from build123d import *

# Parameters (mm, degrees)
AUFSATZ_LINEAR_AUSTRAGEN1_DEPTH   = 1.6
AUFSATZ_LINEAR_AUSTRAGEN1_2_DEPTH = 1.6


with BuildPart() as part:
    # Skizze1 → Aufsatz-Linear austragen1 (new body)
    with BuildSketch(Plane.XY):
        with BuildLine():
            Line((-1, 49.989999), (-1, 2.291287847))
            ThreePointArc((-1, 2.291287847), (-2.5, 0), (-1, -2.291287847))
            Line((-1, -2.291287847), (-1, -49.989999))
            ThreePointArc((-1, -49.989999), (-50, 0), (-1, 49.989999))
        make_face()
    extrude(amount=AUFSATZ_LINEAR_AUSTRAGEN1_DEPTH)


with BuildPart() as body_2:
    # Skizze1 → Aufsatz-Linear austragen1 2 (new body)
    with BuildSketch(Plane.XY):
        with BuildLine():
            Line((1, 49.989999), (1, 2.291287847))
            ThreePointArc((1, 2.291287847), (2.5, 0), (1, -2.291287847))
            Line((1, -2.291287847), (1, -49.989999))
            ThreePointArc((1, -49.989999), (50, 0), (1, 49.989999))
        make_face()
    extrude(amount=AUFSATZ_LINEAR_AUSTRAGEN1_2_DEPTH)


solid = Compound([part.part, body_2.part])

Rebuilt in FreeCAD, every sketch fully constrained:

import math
import FreeCAD as App
import Part
import Sketcher

V = App.Vector
Q = App.Units.Quantity

doc = App.newDocument("Part")
body = doc.addObject("PartDesign::Body", "Body")

# Sketch on XY plane
sketch1 = body.newObject("Sketcher::SketchObject", "Sketch")
sketch1.AttachmentSupport = (doc.getObject("XY_Plane"), [""])
sketch1.MapMode = "FlatFace"
sketch1.addGeometry([
    Part.LineSegment(V(-1, 2.3, 0), V(-1, 50, 0)),
    Part.ArcOfCircle(Part.Circle(V(0, 0, 0), V(0, 0, 1), 50), math.radians(91), math.radians(269)),
    Part.LineSegment(V(-1, -50, 0), V(-1, -2.3, 0)),
    Part.ArcOfCircle(Part.Circle(V(0, 0, 0), V(0, 0, 1), 2.5), math.radians(114), math.radians(246)),
], False)
sketch1.addConstraint([
    Sketcher.Constraint("Coincident", 0, 2, 1, 1),
    Sketcher.Constraint("Coincident", 1, 2, 2, 1),
    Sketcher.Constraint("Coincident", 2, 2, 3, 2),
    Sketcher.Constraint("Coincident", 3, 1, 0, 1),
    Sketcher.Constraint("Vertical", 0),
    Sketcher.Constraint("Vertical", 2),
    Sketcher.Constraint("Coincident", 1, 3, -1, 1),
    Sketcher.Constraint("Coincident", 3, 3, -1, 1),
    Sketcher.Constraint("Vertical", 0, 2, 1, 2),
    Sketcher.Constraint("Radius", 1, Q("50 mm")),
    Sketcher.Constraint("Radius", 3, Q("2.5 mm")),
    Sketcher.Constraint("DistanceX", 0, 2, -1, 1, Q("1 mm")),
])
pad1 = body.newObject("PartDesign::Pad", "Pad")
pad1.Profile = sketch1
pad1.Length = 1.6
body2 = doc.addObject("PartDesign::Body", "Body001")

# Sketch on XY plane
sketch2 = body2.newObject("Sketcher::SketchObject", "Sketch001")
sketch2.AttachmentSupport = (doc.getObject("XY_Plane001"), [""])
sketch2.MapMode = "FlatFace"
sketch2.addGeometry([
    Part.LineSegment(V(1, 50, 0), V(1, 2.3, 0)),
    Part.ArcOfCircle(Part.Circle(V(0, 0, 0), V(0, 0, 1), 2.5), math.radians(-66), math.radians(66)),
    Part.LineSegment(V(1, -2.3, 0), V(1, -50, 0)),
    Part.ArcOfCircle(Part.Circle(V(0, 0, 0), V(0, 0, 1), 50), math.radians(-89), math.radians(89)),
], False)
sketch2.addConstraint([
    Sketcher.Constraint("Coincident", 0, 2, 1, 2),
    Sketcher.Constraint("Coincident", 1, 1, 2, 1),
    Sketcher.Constraint("Coincident", 2, 2, 3, 1),
    Sketcher.Constraint("Coincident", 3, 2, 0, 1),
    Sketcher.Constraint("Vertical", 0),
    Sketcher.Constraint("Vertical", 2),
    Sketcher.Constraint("Coincident", 1, 3, -1, 1),
    Sketcher.Constraint("Coincident", 3, 3, -1, 1),
    Sketcher.Constraint("Vertical", 0, 2, 1, 1),
    Sketcher.Constraint("Radius", 3, Q("50 mm")),
    Sketcher.Constraint("Radius", 1, Q("2.5 mm")),
    Sketcher.Constraint("DistanceX", -1, 1, 0, 2, Q("1 mm")),
])
pad2 = body2.newObject("PartDesign::Pad", "Pad001")
pad2.Profile = sketch2
pad2.Length = 1.6

doc.recompute()
